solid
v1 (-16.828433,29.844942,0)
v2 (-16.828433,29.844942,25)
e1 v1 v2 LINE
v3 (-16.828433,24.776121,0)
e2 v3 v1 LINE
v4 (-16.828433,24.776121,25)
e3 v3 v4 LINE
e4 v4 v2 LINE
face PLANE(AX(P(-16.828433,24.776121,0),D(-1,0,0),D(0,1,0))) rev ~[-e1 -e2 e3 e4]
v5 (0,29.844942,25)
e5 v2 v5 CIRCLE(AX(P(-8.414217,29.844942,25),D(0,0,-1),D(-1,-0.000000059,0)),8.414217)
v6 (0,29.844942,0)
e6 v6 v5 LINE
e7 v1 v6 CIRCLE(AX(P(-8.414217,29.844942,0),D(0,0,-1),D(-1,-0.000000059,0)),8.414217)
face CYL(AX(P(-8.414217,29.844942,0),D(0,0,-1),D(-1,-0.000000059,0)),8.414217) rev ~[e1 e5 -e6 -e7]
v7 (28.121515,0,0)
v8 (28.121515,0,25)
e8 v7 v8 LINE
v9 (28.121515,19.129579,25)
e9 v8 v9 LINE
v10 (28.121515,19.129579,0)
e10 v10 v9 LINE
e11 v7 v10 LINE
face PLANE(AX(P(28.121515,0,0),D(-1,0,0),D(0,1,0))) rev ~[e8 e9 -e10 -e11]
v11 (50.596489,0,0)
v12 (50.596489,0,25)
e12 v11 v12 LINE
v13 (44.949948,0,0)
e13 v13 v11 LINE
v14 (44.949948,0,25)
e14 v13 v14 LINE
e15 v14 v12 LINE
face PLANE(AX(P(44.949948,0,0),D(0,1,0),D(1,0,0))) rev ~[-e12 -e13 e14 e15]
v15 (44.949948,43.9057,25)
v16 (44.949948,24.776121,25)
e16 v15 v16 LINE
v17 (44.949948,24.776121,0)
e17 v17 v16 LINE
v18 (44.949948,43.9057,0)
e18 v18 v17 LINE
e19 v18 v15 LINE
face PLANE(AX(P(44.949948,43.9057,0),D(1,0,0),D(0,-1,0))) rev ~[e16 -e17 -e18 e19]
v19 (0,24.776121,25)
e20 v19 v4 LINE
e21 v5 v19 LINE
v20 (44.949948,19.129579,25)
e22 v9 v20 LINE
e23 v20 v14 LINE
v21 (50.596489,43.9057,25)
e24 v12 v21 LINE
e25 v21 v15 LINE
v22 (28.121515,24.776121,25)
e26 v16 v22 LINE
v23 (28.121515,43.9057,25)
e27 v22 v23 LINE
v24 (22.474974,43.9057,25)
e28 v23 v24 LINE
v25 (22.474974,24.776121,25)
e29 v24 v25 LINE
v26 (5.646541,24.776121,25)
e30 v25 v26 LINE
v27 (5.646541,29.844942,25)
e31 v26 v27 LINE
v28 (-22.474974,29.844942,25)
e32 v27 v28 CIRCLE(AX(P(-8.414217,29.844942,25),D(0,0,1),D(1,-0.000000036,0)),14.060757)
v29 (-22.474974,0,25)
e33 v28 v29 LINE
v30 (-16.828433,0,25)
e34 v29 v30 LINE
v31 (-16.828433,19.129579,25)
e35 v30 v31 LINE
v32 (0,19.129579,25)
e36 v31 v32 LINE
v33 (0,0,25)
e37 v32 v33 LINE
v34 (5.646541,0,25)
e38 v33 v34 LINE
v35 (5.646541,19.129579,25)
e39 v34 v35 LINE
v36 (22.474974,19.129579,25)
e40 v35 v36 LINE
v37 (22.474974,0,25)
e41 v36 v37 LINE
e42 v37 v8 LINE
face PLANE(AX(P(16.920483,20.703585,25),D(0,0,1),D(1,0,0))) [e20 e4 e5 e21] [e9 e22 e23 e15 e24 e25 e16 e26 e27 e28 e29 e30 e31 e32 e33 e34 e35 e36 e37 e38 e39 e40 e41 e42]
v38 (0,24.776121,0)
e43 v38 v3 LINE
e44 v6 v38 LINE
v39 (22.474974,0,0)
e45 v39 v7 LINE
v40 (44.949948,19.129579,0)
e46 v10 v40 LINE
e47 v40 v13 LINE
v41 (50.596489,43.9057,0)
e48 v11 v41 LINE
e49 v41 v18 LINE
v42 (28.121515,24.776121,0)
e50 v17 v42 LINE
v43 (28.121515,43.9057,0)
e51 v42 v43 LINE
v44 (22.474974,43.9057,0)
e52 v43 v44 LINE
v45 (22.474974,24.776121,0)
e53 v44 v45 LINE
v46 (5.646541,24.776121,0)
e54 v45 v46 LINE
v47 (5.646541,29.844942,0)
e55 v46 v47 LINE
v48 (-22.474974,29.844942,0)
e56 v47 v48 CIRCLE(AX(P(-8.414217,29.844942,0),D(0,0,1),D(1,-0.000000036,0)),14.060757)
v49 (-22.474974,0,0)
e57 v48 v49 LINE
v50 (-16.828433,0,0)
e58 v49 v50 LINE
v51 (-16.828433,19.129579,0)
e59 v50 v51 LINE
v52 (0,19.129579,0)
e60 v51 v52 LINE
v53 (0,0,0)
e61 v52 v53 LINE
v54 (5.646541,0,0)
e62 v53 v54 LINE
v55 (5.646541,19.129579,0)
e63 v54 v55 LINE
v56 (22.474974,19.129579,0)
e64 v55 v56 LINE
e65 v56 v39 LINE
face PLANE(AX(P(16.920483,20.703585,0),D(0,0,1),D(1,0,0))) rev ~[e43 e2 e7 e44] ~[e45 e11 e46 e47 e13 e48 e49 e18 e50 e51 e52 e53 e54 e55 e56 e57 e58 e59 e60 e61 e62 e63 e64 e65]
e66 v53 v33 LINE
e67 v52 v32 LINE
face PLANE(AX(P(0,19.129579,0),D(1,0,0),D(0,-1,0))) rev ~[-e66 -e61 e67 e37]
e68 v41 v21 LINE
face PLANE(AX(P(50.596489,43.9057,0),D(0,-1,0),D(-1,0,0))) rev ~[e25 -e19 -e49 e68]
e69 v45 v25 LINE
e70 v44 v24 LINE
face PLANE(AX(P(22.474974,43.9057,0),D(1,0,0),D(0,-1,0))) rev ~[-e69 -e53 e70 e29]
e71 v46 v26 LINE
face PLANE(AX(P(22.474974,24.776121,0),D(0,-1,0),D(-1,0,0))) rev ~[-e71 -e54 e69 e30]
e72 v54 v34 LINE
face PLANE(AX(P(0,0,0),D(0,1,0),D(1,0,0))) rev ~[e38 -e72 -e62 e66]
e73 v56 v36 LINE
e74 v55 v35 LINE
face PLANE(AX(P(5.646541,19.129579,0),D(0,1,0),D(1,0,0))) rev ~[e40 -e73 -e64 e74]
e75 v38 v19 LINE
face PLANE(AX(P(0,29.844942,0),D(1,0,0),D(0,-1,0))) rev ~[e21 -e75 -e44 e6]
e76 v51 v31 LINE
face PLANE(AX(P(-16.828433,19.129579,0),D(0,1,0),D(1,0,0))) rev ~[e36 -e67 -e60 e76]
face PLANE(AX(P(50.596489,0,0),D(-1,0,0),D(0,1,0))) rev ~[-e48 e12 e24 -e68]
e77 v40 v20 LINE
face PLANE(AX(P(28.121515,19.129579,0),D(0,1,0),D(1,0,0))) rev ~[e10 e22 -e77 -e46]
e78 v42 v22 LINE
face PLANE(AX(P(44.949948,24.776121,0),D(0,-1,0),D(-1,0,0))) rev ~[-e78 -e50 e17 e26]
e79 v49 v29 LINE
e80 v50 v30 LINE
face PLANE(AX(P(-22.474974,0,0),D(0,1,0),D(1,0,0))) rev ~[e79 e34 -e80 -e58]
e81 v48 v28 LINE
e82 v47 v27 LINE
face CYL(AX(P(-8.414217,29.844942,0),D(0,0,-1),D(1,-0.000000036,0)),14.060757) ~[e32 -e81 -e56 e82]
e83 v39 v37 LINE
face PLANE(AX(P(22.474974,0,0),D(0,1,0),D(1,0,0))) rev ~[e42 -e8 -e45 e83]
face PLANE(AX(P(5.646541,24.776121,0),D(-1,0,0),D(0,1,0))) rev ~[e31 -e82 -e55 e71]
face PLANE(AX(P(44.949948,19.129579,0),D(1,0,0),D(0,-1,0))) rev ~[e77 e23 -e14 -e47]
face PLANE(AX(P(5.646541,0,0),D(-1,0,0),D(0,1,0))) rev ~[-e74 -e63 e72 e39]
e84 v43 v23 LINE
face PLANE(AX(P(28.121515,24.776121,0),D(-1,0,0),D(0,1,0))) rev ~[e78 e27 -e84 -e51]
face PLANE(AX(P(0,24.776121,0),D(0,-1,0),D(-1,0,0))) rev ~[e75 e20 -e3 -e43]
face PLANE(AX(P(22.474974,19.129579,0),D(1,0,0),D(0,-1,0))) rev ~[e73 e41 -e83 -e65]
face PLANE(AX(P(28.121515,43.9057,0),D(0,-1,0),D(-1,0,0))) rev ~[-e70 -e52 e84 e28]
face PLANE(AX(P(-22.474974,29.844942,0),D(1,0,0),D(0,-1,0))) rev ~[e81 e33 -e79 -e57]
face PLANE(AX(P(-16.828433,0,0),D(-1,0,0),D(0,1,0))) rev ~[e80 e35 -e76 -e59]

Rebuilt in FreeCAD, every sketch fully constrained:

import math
import FreeCAD as App
import Part
import Sketcher

doc = App.newDocument("Part")
body = doc.addObject("PartDesign::Body", "Body")

# Sketch on XY plane
sketch1 = body.newObject("Sketcher::SketchObject", "Sketch")
sketch1.AttachmentSupport = (doc.getObject("XY_Plane"), [""])
sketch1.MapMode = "FlatFace"
sketch1.addGeometry([
    Part.LineSegment(App.Vector(0, 19, 0), App.Vector(0, 0, 0)),  # 0
    Part.LineSegment(App.Vector(0, 0, 0), App.Vector(6, 0, 0)),  # 1
    Part.LineSegment(App.Vector(6, 0, 0), App.Vector(6, 19, 0)),  # 2
    Part.LineSegment(App.Vector(6, 19, 0), App.Vector(22, 19, 0)),  # 3
    Part.LineSegment(App.Vector(22, 19, 0), App.Vector(22, 0, 0)),  # 4
    Part.LineSegment(App.Vector(22, 0, 0), App.Vector(28, 0, 0)),  # 5
    Part.LineSegment(App.Vector(28, 0, 0), App.Vector(28, 19, 0)),  # 6
    Part.LineSegment(App.Vector(28, 19, 0), App.Vector(45, 19, 0)),  # 7
    Part.LineSegment(App.Vector(45, 19, 0), App.Vector(45, 0, 0)),  # 8
    Part.LineSegment(App.Vector(45, 0, 0), App.Vector(51, 0, 0)),  # 9
    Part.LineSegment(App.Vector(51, 0, 0), App.Vector(51, 44, 0)),  # 10
    Part.LineSegment(App.Vector(51, 44, 0), App.Vector(45, 44, 0)),  # 11
    Part.LineSegment(App.Vector(45, 44, 0), App.Vector(45, 25, 0)),  # 12
    Part.LineSegment(App.Vector(45, 25, 0), App.Vector(28, 25, 0)),  # 13
    Part.LineSegment(App.Vector(28, 25, 0), App.Vector(28, 44, 0)),  # 14
    Part.LineSegment(App.Vector(28, 44, 0), App.Vector(22, 44, 0)),  # 15
    Part.LineSegment(App.Vector(22, 44, 0), App.Vector(22, 25, 0)),  # 16
    Part.LineSegment(App.Vector(22, 25, 0), App.Vector(6, 25, 0)),  # 17
    Part.LineSegment(App.Vector(6, 25, 0), App.Vector(6, 30, 0)),  # 18
    Part.ArcOfCircle(Part.Circle(App.Vector(-8, 30, 0), App.Vector(0, 0, 1), 14), math.radians(0), math.radians(180)),  # 19
    Part.LineSegment(App.Vector(-22, 30, 0), App.Vector(-22, 0, 0)),  # 20
    Part.LineSegment(App.Vector(-22, 0, 0), App.Vector(-17, 0, 0)),  # 21
    Part.LineSegment(App.Vector(-17, 0, 0), App.Vector(-17, 19, 0)),  # 22
    Part.LineSegment(App.Vector(-17, 19, 0), App.Vector(0, 19, 0)),  # 23
    Part.ArcOfCircle(Part.Circle(App.Vector(-8, 30, 0), App.Vector(0, 0, 1), 8), math.radians(0), math.radians(180)),  # 24
    Part.LineSegment(App.Vector(0, 30, 0), App.Vector(0, 25, 0)),  # 25
    Part.LineSegment(App.Vector(0, 25, 0), App.Vector(-17, 25, 0)),  # 26
    Part.LineSegment(App.Vector(-17, 25, 0), App.Vector(-17, 30, 0)),  # 27
], False)
sketch1.addConstraint([
    Sketcher.Constraint("Coincident", 0, 2, 1, 1),
    Sketcher.Constraint("Coincident", 1, 2, 2, 1),
    Sketcher.Constraint("Coincident", 2, 2, 3, 1),
    Sketcher.Constraint("Coincident", 3, 2, 4, 1),
    Sketcher.Constraint("Coincident", 4, 2, 5, 1),
    Sketcher.Constraint("Coincident", 5, 2, 6, 1),
    Sketcher.Constraint("Coincident", 6, 2, 7, 1),
    Sketcher.Constraint("Coincident", 7, 2, 8, 1),
    Sketcher.Constraint("Coincident", 8, 2, 9, 1),
    Sketcher.Constraint("Coincident", 9, 2, 10, 1),
    Sketcher.Constraint("Coincident", 10, 2, 11, 1),
    Sketcher.Constraint("Coincident", 11, 2, 12, 1),
    Sketcher.Constraint("Coincident", 12, 2, 13, 1),
    Sketcher.Constraint("Coincident", 13, 2, 14, 1),
    Sketcher.Constraint("Coincident", 14, 2, 15, 1),
    Sketcher.Constraint("Coincident", 15, 2, 16, 1),
    Sketcher.Constraint("Coincident", 16, 2, 17, 1),
    Sketcher.Constraint("Coincident", 17, 2, 18, 1),
    Sketcher.Constraint("Tangent", 18, 2, 19, 1),
    Sketcher.Constraint("Tangent", 19, 2, 20, 1),
    Sketcher.Constraint("Coincident", 20, 2, 21, 1),
    Sketcher.Constraint("Coincident", 21, 2, 22, 1),
    Sketcher.Constraint("Coincident", 22, 2, 23, 1),
    Sketcher.Constraint("Coincident", 23, 2, 0, 1),
    Sketcher.Constraint("Tangent", 24, 1, 25, 1),
    Sketcher.Constraint("Coincident", 25, 2, 26, 1),
    Sketcher.Constraint("Coincident", 26, 2, 27, 1),
    Sketcher.Constraint("Tangent", 27, 2, 24, 2),
    Sketcher.Constraint("Vertical", 0),
    Sketcher.Constraint("Horizontal", 1),
    Sketcher.Constraint("Vertical", 2),
    Sketcher.Constraint("Horizontal", 3),
    Sketcher.Constraint("Vertical", 4),
    Sketcher.Constraint("Horizontal", 5),
    Sketcher.Constraint("Vertical", 6),
    Sketcher.Constraint("Horizontal", 7),
    Sketcher.Constraint("Vertical", 8),
    Sketcher.Constraint("Horizontal", 9),
    Sketcher.Constraint("Vertical", 10),
    Sketcher.Constraint("Horizontal", 11),
    Sketcher.Constraint("Vertical", 12),
    Sketcher.Constraint("Horizontal", 13),
    Sketcher.Constraint("Vertical", 14),
    Sketcher.Constraint("Horizontal", 15),
    Sketcher.Constraint("Vertical", 16),
    Sketcher.Constraint("Horizontal", 17),
    Sketcher.Constraint("Vertical", 18),
    Sketcher.Constraint("Vertical", 20),
    Sketcher.Constraint("Horizontal", 21),
    Sketcher.Constraint("Vertical", 22),
    Sketcher.Constraint("Horizontal", 23),
    Sketcher.Constraint("Vertical", 25),
    Sketcher.Constraint("Horizontal", 26),
    Sketcher.Constraint("Vertical", 27),
    Sketcher.Constraint("Coincident", 0, 2, -1, 1),
    Sketcher.Constraint("Coincident", 24, 3, 19, 3),
    Sketcher.Constraint("Symmetric", 4, 2, 20, 2, -1, 1),
    Sketcher.Constraint("PointOnObject", 4, 2, -1),
    Sketcher.Constraint("PointOnObject", 8, 2, -1),
    Sketcher.Constraint("PointOnObject", 24, 1, -2),
    Sketcher.Constraint("Horizontal", 3, 2, 6, 2),
    Sketcher.Constraint("Horizontal", 11, 2, 14, 2),
    Sketcher.Constraint("Horizontal", 13, 2, 16, 2),
    Sketcher.Constraint("Horizontal", 7, 2, 22, 2),
    Sketcher.Constraint("Horizontal", 17, 2, 25, 2),
    Sketcher.Constraint("Vertical", 8, 2, 11, 2),
    Sketcher.Constraint("Vertical", 6, 2, 13, 2),
    Sketcher.Constraint("Vertical", 4, 2, 15, 2),
    Sketcher.Constraint("Vertical", 2, 2, 17, 2),
    Sketcher.Constraint("Vertical", 22, 2, 26, 2),
    Sketcher.Constraint("Equal", 1, 5),
    Sketcher.Constraint("Equal", 3, 7),
    Sketcher.Constraint("Equal", 5, 9),
    Sketcher.Constraint("Equal", 8, 12),
    Sketcher.Constraint("DistanceY", 10, 1, 10, 2, 43.9057),
    Sketcher.Constraint("Radius", 19, 14.060757),
    Sketcher.Constraint("Radius", 24, 8.414217),
    Sketcher.Constraint("DistanceY", 0, 2, 0, 1, 19.129579),
    Sketcher.Constraint("DistanceY", 18, 1, 18, 2, 5.068821),
])
pad1 = body.newObject("PartDesign::Pad", "Pad")
pad1.Profile = sketch1
pad1.Length = 25

doc.recompute()
